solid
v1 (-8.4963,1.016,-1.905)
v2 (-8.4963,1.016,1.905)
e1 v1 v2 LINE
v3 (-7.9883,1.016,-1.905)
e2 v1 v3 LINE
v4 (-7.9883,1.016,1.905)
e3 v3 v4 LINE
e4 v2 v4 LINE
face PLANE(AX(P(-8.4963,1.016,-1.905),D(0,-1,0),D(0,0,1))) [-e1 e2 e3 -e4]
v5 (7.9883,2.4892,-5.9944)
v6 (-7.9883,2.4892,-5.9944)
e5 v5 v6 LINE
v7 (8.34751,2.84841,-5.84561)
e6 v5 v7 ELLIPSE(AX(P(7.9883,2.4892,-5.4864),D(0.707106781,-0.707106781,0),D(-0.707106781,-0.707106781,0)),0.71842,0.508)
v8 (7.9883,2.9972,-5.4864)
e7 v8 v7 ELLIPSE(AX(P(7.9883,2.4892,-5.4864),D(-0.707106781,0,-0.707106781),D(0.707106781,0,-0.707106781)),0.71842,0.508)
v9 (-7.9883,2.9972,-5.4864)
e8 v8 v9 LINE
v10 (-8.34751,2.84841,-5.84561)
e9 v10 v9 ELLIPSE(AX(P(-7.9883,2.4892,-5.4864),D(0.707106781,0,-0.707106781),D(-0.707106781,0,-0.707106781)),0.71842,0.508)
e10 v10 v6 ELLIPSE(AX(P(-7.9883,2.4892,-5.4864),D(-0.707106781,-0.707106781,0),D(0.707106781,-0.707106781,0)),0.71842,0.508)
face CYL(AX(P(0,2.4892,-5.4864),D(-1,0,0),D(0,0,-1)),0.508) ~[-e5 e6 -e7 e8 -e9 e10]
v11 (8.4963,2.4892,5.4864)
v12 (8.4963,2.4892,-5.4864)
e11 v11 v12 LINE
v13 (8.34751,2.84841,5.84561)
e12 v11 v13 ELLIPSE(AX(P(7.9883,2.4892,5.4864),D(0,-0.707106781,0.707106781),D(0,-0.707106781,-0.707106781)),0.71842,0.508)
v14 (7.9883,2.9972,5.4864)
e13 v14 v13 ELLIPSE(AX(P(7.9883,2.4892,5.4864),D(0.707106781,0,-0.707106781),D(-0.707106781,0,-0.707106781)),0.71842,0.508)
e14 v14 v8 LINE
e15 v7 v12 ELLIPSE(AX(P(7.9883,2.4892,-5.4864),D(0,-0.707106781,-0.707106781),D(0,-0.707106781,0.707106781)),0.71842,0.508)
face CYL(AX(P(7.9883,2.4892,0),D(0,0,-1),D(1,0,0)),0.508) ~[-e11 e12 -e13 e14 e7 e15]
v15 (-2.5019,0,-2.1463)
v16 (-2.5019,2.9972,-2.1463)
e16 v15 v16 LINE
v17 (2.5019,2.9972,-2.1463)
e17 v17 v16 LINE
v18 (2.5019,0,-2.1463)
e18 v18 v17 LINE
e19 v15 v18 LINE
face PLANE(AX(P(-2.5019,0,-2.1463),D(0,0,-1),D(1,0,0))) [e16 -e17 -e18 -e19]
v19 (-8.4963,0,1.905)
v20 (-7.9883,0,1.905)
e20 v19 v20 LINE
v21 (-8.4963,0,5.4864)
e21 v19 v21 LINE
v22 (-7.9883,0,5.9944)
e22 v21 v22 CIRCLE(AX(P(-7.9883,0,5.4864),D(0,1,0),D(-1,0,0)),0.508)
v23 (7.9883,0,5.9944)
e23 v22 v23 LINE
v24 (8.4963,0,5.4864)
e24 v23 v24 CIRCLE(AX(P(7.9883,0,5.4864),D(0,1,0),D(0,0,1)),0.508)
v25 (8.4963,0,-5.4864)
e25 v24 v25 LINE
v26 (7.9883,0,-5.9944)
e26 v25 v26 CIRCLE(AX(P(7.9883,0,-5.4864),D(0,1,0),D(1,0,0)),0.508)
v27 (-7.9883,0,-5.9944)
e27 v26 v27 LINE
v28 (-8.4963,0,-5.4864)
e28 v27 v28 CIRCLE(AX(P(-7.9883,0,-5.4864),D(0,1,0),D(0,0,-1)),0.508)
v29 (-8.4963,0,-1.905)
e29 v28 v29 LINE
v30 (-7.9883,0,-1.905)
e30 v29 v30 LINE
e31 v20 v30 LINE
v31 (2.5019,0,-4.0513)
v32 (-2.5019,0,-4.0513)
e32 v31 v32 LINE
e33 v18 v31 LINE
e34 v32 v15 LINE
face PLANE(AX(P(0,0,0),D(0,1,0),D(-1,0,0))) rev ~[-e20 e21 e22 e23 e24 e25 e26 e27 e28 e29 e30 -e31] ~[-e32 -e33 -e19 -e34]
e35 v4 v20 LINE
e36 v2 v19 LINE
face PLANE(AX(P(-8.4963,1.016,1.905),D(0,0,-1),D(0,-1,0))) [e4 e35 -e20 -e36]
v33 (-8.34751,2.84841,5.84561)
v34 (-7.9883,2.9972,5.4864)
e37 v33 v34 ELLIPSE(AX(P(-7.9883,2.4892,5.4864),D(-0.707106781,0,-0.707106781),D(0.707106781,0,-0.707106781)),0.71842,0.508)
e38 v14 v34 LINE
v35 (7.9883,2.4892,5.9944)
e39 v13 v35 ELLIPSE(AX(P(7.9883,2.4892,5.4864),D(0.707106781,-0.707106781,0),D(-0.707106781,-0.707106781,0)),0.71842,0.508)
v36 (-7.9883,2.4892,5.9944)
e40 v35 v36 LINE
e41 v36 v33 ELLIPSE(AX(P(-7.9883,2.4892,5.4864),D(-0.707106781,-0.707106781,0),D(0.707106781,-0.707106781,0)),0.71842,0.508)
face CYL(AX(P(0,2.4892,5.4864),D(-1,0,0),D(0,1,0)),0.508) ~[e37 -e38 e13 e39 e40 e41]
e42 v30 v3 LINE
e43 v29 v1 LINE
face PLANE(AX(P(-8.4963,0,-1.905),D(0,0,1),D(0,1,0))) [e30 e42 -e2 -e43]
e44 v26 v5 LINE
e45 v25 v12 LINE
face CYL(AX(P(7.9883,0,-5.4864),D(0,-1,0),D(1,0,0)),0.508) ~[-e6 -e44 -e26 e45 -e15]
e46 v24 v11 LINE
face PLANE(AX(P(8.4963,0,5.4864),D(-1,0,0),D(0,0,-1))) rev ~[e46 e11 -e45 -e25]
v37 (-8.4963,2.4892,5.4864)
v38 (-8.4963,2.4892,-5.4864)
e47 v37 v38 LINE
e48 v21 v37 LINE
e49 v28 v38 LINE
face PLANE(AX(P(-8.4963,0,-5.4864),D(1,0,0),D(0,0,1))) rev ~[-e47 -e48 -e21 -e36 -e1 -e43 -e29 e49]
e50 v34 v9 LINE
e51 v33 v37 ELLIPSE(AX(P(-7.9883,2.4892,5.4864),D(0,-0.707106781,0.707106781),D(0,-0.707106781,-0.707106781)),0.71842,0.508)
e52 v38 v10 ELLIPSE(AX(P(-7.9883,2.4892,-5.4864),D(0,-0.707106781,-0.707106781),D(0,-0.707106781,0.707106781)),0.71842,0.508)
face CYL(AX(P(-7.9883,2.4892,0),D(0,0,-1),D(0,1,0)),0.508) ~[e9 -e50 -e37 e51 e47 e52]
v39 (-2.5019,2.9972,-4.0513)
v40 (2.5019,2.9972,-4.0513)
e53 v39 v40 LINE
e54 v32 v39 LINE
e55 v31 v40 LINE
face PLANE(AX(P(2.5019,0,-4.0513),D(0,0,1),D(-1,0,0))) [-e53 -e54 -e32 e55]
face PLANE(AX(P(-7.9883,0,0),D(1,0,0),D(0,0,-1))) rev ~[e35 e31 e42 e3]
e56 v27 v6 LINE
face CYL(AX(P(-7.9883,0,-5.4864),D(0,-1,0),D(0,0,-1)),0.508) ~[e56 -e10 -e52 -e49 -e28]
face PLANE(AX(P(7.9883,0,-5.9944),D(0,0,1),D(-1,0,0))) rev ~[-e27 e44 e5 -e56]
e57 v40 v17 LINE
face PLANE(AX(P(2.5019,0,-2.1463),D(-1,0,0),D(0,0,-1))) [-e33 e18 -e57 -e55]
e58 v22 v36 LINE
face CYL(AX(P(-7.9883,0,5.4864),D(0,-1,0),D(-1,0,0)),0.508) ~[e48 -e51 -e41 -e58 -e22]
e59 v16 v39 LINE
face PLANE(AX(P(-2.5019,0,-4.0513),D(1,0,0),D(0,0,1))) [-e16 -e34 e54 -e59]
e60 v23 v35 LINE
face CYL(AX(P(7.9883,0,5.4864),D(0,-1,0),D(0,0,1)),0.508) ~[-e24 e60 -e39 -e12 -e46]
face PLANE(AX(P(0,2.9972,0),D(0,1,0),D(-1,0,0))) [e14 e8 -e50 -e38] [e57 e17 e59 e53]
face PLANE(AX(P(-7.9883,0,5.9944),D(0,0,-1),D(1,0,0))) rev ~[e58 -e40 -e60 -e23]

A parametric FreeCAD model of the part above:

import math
import FreeCAD as App
import Part
import Sketcher
Q = App.Units.Quantity

doc = App.newDocument("Part")
body = doc.addObject("PartDesign::Body", "Body")

# Sketch on XZ plane
sketch1 = doc.addObject("Sketcher::SketchObject", "Sketch")
body.addObject(sketch1)
sketch1.AttachmentSupport = (doc.XZ_Plane, [""])
sketch1.MapMode = "FlatFace"
sketch1.addGeometry([
    Part.ArcOfCircle(Part.Circle(App.Vector(-7.9883, -5.4864, 0), App.Vector(0, 0, 1), 0.508), math.radians(180), math.radians(270)),  # 0
    Part.LineSegment(App.Vector(-8.4963, -5.4864, 0), App.Vector(-8.4963, 5.4864, 0)),  # 1
    Part.ArcOfCircle(Part.Circle(App.Vector(-7.9883, 5.4864, 0), App.Vector(0, 0, 1), 0.508), math.radians(90), math.radians(180)),  # 2
    Part.LineSegment(App.Vector(-7.9883, 5.9944, 0), App.Vector(7.9883, 5.9944, 0)),  # 3
    Part.ArcOfCircle(Part.Circle(App.Vector(7.9883, 5.4864, 0), App.Vector(0, 0, 1), 0.508), math.radians(0), math.radians(90)),  # 4
    Part.LineSegment(App.Vector(8.4963, 5.4864, 0), App.Vector(8.4963, -5.4864, 0)),  # 5
    Part.ArcOfCircle(Part.Circle(App.Vector(7.9883, -5.4864, 0), App.Vector(0, 0, 1), 0.508), math.radians(-90), math.radians(0)),  # 6
    Part.LineSegment(App.Vector(7.9883, -5.9944, 0), App.Vector(-7.9883, -5.9944, 0)),  # 7
], False)
sketch1.addConstraint([
    Sketcher.Constraint("Tangent", 0, 1, 1, 1),
    Sketcher.Constraint("Tangent", 1, 2, 2, 2),
    Sketcher.Constraint("Tangent", 2, 1, 3, 1),
    Sketcher.Constraint("Tangent", 3, 2, 4, 2),
    Sketcher.Constraint("Tangent", 4, 1, 5, 1),
    Sketcher.Constraint("Tangent", 5, 2, 6, 2),
    Sketcher.Constraint("Tangent", 6, 1, 7, 1),
    Sketcher.Constraint("Tangent", 7, 2, 0, 2),
    Sketcher.Constraint("Vertical", 1),
    Sketcher.Constraint("Horizontal", 3),
    Sketcher.Constraint("Vertical", 5),
    Sketcher.Constraint("Horizontal", 7),
    Sketcher.Constraint("Equal", 0, 2),
    Sketcher.Constraint("Equal", 2, 4),
    Sketcher.Constraint("Equal", 4, 6),
    Sketcher.Constraint("Symmetric", 0, 3, 4, 3, -1, 1),
    Sketcher.Constraint("Radius", 0, Q("0.02 in")),
    Sketcher.Constraint("DistanceX", 3, 1, 3, 2, Q("0.629 in")),
    Sketcher.Constraint("DistanceY", 1, 1, 1, 2, Q("0.432 in")),
])
pad1 = doc.addObject("PartDesign::Pad", "Pad")
body.addObject(pad1)
pad1.Profile = sketch1
pad1.Length = Q("0.118 in")
pad1.Reversed = True

# Sketch on XY plane
sketch2 = doc.addObject("Sketcher::SketchObject", "Sketch001")
body.addObject(sketch2)
sketch2.AttachmentSupport = (doc.XY_Plane, [""])
sketch2.MapMode = "FlatFace"
sketch2.addGeometry([
    Part.LineSegment(App.Vector(10.16, 5.08, 0), App.Vector(-10.16, 5.08, 0)),  # 0
    Part.LineSegment(App.Vector(-10.16, 5.08, 0), App.Vector(-10.16, -2.54, 0)),  # 1
    Part.LineSegment(App.Vector(-10.16, -2.54, 0), App.Vector(10.16, -2.54, 0)),  # 2
    Part.LineSegment(App.Vector(10.16, -2.54, 0), App.Vector(10.16, 5.08, 0)),  # 3
    Part.LineSegment(App.Vector(8.4963, 0, 0), App.Vector(-8.4963, 0, 0)),  # 4
    Part.LineSegment(App.Vector(-8.4963, 0, 0), App.Vector(-8.4963, 2.4892, 0)),  # 5
    Part.ArcOfCircle(Part.Circle(App.Vector(-7.9883, 2.4892, 0), App.Vector(0, 0, 1), 0.508), math.radians(90), math.radians(180)),  # 6
    Part.LineSegment(App.Vector(-7.9883, 2.9972, 0), App.Vector(7.9883, 2.9972, 0)),  # 7
    Part.ArcOfCircle(Part.Circle(App.Vector(7.9883, 2.4892, 0), App.Vector(0, 0, 1), 0.508), math.radians(0), math.radians(90)),  # 8
    Part.LineSegment(App.Vector(8.4963, 2.4892, 0), App.Vector(8.4963, 0, 0)),  # 9
], False)
sketch2.addConstraint([
    Sketcher.Constraint("Coincident", 0, 2, 1, 1),
    Sketcher.Constraint("Coincident", 1, 2, 2, 1),
    Sketcher.Constraint("Coincident", 2, 2, 3, 1),
    Sketcher.Constraint("Coincident", 3, 2, 0, 1),
    Sketcher.Constraint("Coincident", 4, 2, 5, 1),
    Sketcher.Constraint("Tangent", 5, 2, 6, 2),
    Sketcher.Constraint("Tangent", 6, 1, 7, 1),
    Sketcher.Constraint("Tangent", 7, 2, 8, 2),
    Sketcher.Constraint("Tangent", 8, 1, 9, 1),
    Sketcher.Constraint("Coincident", 9, 2, 4, 1),
    Sketcher.Constraint("Horizontal", 0),
    Sketcher.Constraint("Vertical", 1),
    Sketcher.Constraint("Horizontal", 2),
    Sketcher.Constraint("Vertical", 3),
    Sketcher.Constraint("Horizontal", 4),
    Sketcher.Constraint("Vertical", 5),
    Sketcher.Constraint("Horizontal", 7),
    Sketcher.Constraint("Vertical", 9),
    Sketcher.Constraint("Equal", 6, 8),
    Sketcher.Constraint("Symmetric", 4, 2, 9, 2, -1, 1),
    Sketcher.Constraint("Radius", 6, Q("0.02 in")),
    Sketcher.Constraint("DistanceX", 0, 2, 0, 1, Q("0.8 in")),
    Sketcher.Constraint("DistanceY", 1, 2, 1, 1, Q("0.3 in")),
    Sketcher.Constraint("DistanceX", 0, 2, -1, 1, Q("0.4 in")),
    Sketcher.Constraint("DistanceY", -1, 1, 0, 2, Q("0.2 in")),
    Sketcher.Constraint("DistanceX", 4, 2, 4, 1, Q("0.669 in")),
    Sketcher.Constraint("DistanceY", 5, 1, 5, 2, Q("0.098 in")),
])
pocket1 = doc.addObject("PartDesign::Pocket", "Pocket")
body.addObject(pocket1)
pocket1.Profile = sketch2
pocket1.Length = Q("0.6 in")
pocket1.Midplane = True

# Sketch on YZ plane
sketch3 = doc.addObject("Sketcher::SketchObject", "Sketch002")
body.addObject(sketch3)
sketch3.AttachmentSupport = (doc.YZ_Plane, [""])
sketch3.MapMode = "FlatFace"
sketch3.addGeometry([
    Part.LineSegment(App.Vector(5.08, -10.16, 0), App.Vector(5.08, 10.16, 0)),  # 0
    Part.LineSegment(App.Vector(5.08, 10.16, 0), App.Vector(-2.54, 10.16, 0)),  # 1
    Part.LineSegment(App.Vector(-2.54, 10.16, 0), App.Vector(-2.54, -10.16, 0)),  # 2
    Part.LineSegment(App.Vector(-2.54, -10.16, 0), App.Vector(5.08, -10.16, 0)),  # 3
    Part.LineSegment(App.Vector(0, -5.9944, 0), App.Vector(0, 5.9944, 0)),  # 4
    Part.LineSegment(App.Vector(0, 5.9944, 0), App.Vector(2.4892, 5.9944, 0)),  # 5
    Part.ArcOfCircle(Part.Circle(App.Vector(2.4892, 5.4864, 0), App.Vector(0, 0, 1), 0.508), math.radians(0), math.radians(90)),  # 6
    Part.LineSegment(App.Vector(2.9972, 5.4864, 0), App.Vector(2.9972, -5.4864, 0)),  # 7
    Part.ArcOfCircle(Part.Circle(App.Vector(2.4892, -5.4864, 0), App.Vector(0, 0, 1), 0.508), math.radians(-90), math.radians(0)),  # 8
    Part.LineSegment(App.Vector(2.4892, -5.9944, 0), App.Vector(0, -5.9944, 0)),  # 9
], False)
sketch3.addConstraint([
    Sketcher.Constraint("Coincident", 0, 2, 1, 1),
    Sketcher.Constraint("Coincident", 1, 2, 2, 1),
    Sketcher.Constraint("Coincident", 2, 2, 3, 1),
    Sketcher.Constraint("Coincident", 3, 2, 0, 1),
    Sketcher.Constraint("Coincident", 4, 2, 5, 1),
    Sketcher.Constraint("Tangent", 5, 2, 6, 2),
    Sketcher.Constraint("Tangent", 6, 1, 7, 1),
    Sketcher.Constraint("Tangent", 7, 2, 8, 2),
    Sketcher.Constraint("Tangent", 8, 1, 9, 1),
    Sketcher.Constraint("Coincident", 9, 2, 4, 1),
    Sketcher.Constraint("Vertical", 0),
    Sketcher.Constraint("Horizontal", 1),
    Sketcher.Constraint("Vertical", 2),
    Sketcher.Constraint("Horizontal", 3),
    Sketcher.Constraint("Vertical", 4),
    Sketcher.Constraint("Horizontal", 5),
    Sketcher.Constraint("Vertical", 7),
    Sketcher.Constraint("Horizontal", 9),
    Sketcher.Constraint("Equal", 6, 8),
    Sketcher.Constraint("Symmetric", 4, 2, 9, 2, -1, 1),
    Sketcher.Constraint("Radius", 6, Q("0.02 in")),
    Sketcher.Constraint("DistanceX", 1, 2, 1, 1, Q("0.3 in")),
    Sketcher.Constraint("DistanceY", 0, 1, 0, 2, Q("0.8 in")),
    Sketcher.Constraint("DistanceX", -1, 1, 0, 2, Q("0.2 in")),
    Sketcher.Constraint("DistanceY", -1, 1, 0, 2, Q("0.4 in")),
    Sketcher.Constraint("DistanceX", 5, 1, 5, 2, Q("0.098 in")),
    Sketcher.Constraint("DistanceY", 4, 1, 4, 2, Q("0.472 in")),
])
pocket2 = doc.addObject("PartDesign::Pocket", "Pocket001")
body.addObject(pocket2)
pocket2.Profile = sketch3
pocket2.Length = Q("0.8 in")
pocket2.Midplane = True

# Sketch on YZ plane
sketch4 = doc.addObject("Sketcher::SketchObject", "Sketch003")
body.addObject(sketch4)
sketch4.AttachmentSupport = (doc.YZ_Plane, [""])
sketch4.MapMode = "FlatFace"
sketch4.AttachmentOffset = App.Placement(App.Vector(0, 0, -0.3345 * 25.4), App.Rotation())
sketch4.addGeometry([
    Part.LineSegment(App.Vector(1.016, 1.905, 0), App.Vector(0, 1.905, 0)),
    Part.LineSegment(App.Vector(0, 1.905, 0), App.Vector(0, -1.905, 0)),
    Part.LineSegment(App.Vector(0, -1.905, 0), App.Vector(1.016, -1.905, 0)),
    Part.LineSegment(App.Vector(1.016, -1.905, 0), App.Vector(1.016, 1.905, 0)),
], False)
sketch4.addConstraint([
    Sketcher.Constraint("Coincident", 0, 2, 1, 1),
    Sketcher.Constraint("Coincident", 1, 2, 2, 1),
    Sketcher.Constraint("Coincident", 2, 2, 3, 1),
    Sketcher.Constraint("Coincident", 3, 2, 0, 1),
    Sketcher.Constraint("Horizontal", 0),
    Sketcher.Constraint("Vertical", 1),
    Sketcher.Constraint("Horizontal", 2),
    Sketcher.Constraint("Vertical", 3),
    Sketcher.Constraint("Symmetric", 0, 2, 1, 2, -1, 1),
    Sketcher.Constraint("DistanceX", 0, 2, 0, 1, Q("0.04 in")),
    Sketcher.Constraint("DistanceY", 1, 2, 1, 1, Q("0.15 in")),
])
pocket3 = doc.addObject("PartDesign::Pocket", "Pocket002")
body.addObject(pocket3)
pocket3.Profile = sketch4
pocket3.Length = Q("0.02 in")
pocket3.Reversed = True

# Sketch on XZ plane
sketch5 = doc.addObject("Sketcher::SketchObject", "Sketch004")
body.addObject(sketch5)
sketch5.AttachmentSupport = (doc.XZ_Plane, [""])
sketch5.MapMode = "FlatFace"
sketch5.addGeometry([
    Part.LineSegment(App.Vector(2.5019, -4.0513, 0), App.Vector(-2.5019, -4.0513, 0)),
    Part.LineSegment(App.Vector(-2.5019, -4.0513, 0), App.Vector(-2.5019, -2.1463, 0)),
    Part.LineSegment(App.Vector(-2.5019, -2.1463, 0), App.Vector(2.5019, -2.1463, 0)),
    Part.LineSegment(App.Vector(2.5019, -2.1463, 0), App.Vector(2.5019, -4.0513, 0)),
], False)
sketch5.addConstraint([
    Sketcher.Constraint("Coincident", 0, 2, 1, 1),
    Sketcher.Constraint("Coincident", 1, 2, 2, 1),
    Sketcher.Constraint("Coincident", 2, 2, 3, 1),
    Sketcher.Constraint("Coincident", 3, 2, 0, 1),
    Sketcher.Constraint("Horizontal", 0),
    Sketcher.Constraint("Vertical", 1),
    Sketcher.Constraint("Horizontal", 2),
    Sketcher.Constraint("Vertical", 3),
    Sketcher.Constraint("DistanceX", 0, 2, 0, 1, Q("0.197 in")),
    Sketcher.Constraint("DistanceY", 1, 1, 1, 2, Q("0.075 in")),
    Sketcher.Constraint("DistanceX", 0, 2, -1, 1, Q("0.0985 in")),
    Sketcher.Constraint("DistanceY", 0, 2, -1, 1, Q("0.1595 in")),
])
pocket4 = doc.addObject("PartDesign::Pocket", "Pocket003")
body.addObject(pocket4)
pocket4.Profile = sketch5
pocket4.Length = Q("0.2 in")

doc.recompute()
